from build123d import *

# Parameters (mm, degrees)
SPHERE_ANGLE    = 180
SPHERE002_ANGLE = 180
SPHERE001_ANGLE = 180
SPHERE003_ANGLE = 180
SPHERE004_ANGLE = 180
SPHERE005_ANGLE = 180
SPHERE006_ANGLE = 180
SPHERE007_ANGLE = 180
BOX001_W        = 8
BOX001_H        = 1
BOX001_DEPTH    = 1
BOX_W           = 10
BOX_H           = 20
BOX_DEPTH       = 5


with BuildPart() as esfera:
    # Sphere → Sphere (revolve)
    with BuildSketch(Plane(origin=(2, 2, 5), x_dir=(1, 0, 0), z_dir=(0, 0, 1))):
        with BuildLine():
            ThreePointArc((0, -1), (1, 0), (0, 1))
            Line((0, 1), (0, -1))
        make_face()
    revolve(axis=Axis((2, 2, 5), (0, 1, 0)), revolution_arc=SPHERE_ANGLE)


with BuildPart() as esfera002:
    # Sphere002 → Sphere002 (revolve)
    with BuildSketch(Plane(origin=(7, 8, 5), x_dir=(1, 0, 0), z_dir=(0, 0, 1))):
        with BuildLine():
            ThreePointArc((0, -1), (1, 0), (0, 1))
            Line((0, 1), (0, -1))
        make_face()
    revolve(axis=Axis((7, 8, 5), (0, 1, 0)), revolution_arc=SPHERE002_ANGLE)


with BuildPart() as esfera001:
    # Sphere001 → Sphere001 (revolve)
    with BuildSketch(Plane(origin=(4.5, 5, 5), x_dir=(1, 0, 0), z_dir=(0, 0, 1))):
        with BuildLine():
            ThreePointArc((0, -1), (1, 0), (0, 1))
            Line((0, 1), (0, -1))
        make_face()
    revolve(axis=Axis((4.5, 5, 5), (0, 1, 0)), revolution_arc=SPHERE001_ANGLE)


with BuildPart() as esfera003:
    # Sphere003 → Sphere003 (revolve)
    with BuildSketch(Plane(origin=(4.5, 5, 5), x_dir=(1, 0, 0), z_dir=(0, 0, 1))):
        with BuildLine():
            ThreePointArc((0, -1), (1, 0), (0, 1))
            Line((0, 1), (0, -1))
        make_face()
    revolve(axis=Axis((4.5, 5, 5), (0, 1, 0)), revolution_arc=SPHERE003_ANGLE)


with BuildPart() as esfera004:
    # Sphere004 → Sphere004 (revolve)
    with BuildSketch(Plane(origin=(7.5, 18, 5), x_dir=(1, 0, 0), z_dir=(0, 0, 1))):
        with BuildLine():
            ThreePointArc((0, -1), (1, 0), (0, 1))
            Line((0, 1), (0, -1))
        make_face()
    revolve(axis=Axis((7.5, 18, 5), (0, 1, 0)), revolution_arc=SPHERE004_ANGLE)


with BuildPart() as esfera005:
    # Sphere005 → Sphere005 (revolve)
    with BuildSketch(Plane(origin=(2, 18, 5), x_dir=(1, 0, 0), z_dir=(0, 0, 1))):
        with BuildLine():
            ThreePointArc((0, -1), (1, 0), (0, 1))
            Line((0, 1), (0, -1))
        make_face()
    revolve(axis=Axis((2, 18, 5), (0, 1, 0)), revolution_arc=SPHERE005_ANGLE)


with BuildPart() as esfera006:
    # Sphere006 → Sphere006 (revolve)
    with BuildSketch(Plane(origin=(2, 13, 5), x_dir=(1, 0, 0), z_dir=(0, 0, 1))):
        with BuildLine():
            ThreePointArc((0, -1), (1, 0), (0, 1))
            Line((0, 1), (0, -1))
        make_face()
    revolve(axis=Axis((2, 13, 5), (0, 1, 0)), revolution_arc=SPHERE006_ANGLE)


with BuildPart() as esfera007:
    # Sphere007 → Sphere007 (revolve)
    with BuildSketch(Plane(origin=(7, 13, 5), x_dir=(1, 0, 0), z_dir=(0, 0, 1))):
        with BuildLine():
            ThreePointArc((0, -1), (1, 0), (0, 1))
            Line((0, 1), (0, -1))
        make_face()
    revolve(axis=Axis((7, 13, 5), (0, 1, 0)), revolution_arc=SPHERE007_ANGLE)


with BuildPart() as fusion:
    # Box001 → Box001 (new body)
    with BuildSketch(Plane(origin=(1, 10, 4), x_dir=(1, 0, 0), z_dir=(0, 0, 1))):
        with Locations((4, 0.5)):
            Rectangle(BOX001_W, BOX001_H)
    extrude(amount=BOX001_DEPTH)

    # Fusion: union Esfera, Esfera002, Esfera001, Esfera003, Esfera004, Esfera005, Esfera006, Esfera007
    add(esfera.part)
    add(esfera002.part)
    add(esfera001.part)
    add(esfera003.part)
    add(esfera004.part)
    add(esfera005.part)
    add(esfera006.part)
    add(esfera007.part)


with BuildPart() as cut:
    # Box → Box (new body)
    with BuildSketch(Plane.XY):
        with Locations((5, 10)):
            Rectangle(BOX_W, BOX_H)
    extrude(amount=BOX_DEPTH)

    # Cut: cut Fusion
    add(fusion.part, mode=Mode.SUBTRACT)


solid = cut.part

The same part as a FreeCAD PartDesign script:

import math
import FreeCAD as App
import Part
import Sketcher

V = App.Vector
Q = App.Units.Quantity

doc = App.newDocument("Part")
body = doc.addObject("PartDesign::Body", "Body")

# Sketch on XY plane
sketch1 = body.newObject("Sketcher::SketchObject", "Sketch")
sketch1.AttachmentSupport = (doc.getObject("XY_Plane"), [""])
sketch1.MapMode = "FlatFace"
sketch1.AttachmentOffset = App.Placement(V(0, 0, 5), App.Rotation())
sketch1.addGeometry(Part.ArcOfCircle(Part.Circle(V(2, 2, 0), V(0, 0, 1), 1), math.radians(-90), math.radians(90)), False)
sketch1.addGeometry(Part.LineSegment(V(2, 3, 0), V(2, 1, 0)), False)
sketch1.addGeometry(Part.LineSegment(V(2, 1, 0), V(2, 3, 0)), True)  # axis
sketch1.addConstraint(Sketcher.Constraint("Coincident", 0, 1, 1, 2))
sketch1.addConstraint(Sketcher.Constraint("Coincident", 1, 1, 0, 2))
sketch1.addConstraint(Sketcher.Constraint("Vertical", 1))
sketch1.addConstraint(Sketcher.Constraint("Vertical", 2))
sketch1.addConstraint(Sketcher.Constraint("Coincident", 2, 1, 0, 1))
sketch1.addConstraint(Sketcher.Constraint("Equal", 1, 2))
sketch1.addConstraint(Sketcher.Constraint("Radius", 0, Q("1 mm")))
sketch1.addConstraint(Sketcher.Constraint("DistanceX", -1, 1, 0, 3, Q("2 mm")))
sketch1.addConstraint(Sketcher.Constraint("DistanceY", -1, 1, 0, 3, Q("2 mm")))
sketch1.addConstraint(Sketcher.Constraint("DistanceX", -1, 1, 0, 1, Q("2 mm")))
revolution = body.newObject("PartDesign::Revolution", "Revolution")
revolution.Profile = sketch1
revolution.ReferenceAxis = (sketch1, ["Axis0"])
revolution.Angle = 180
body2 = doc.addObject("PartDesign::Body", "Body001")

# Sketch on XY plane
sketch2 = body2.newObject("Sketcher::SketchObject", "Sketch001")
sketch2.AttachmentSupport = (doc.getObject("XY_Plane001"), [""])
sketch2.MapMode = "FlatFace"
sketch2.AttachmentOffset = App.Placement(V(0, 0, 5), App.Rotation())
sketch2.addGeometry(Part.ArcOfCircle(Part.Circle(V(7, 8, 0), V(0, 0, 1), 1), math.radians(-90), math.radians(90)), False)
sketch2.addGeometry(Part.LineSegment(V(7, 9, 0), V(7, 7, 0)), False)
sketch2.addGeometry(Part.LineSegment(V(7, 7, 0), V(7, 9, 0)), True)  # axis
sketch2.addConstraint(Sketcher.Constraint("Coincident", 0, 1, 1, 2))
sketch2.addConstraint(Sketcher.Constraint("Coincident", 1, 1, 0, 2))
sketch2.addConstraint(Sketcher.Constraint("Vertical", 1))
sketch2.addConstraint(Sketcher.Constraint("Vertical", 2))
sketch2.addConstraint(Sketcher.Constraint("Coincident", 2, 1, 0, 1))
sketch2.addConstraint(Sketcher.Constraint("Equal", 1, 2))
sketch2.addConstraint(Sketcher.Constraint("Radius", 0, Q("1 mm")))
sketch2.addConstraint(Sketcher.Constraint("DistanceX", -1, 1, 0, 3, Q("7 mm")))
sketch2.addConstraint(Sketcher.Constraint("DistanceY", -1, 1, 0, 3, Q("8 mm")))
sketch2.addConstraint(Sketcher.Constraint("DistanceX", -1, 1, 0, 1, Q("7 mm")))
revolution2 = body2.newObject("PartDesign::Revolution", "Revolution001")
revolution2.Profile = sketch2
revolution2.ReferenceAxis = (sketch2, ["Axis0"])
revolution2.Angle = 180
body3 = doc.addObject("PartDesign::Body", "Body002")

# Sketch on XY plane
sketch3 = body3.newObject("Sketcher::SketchObject", "Sketch002")
sketch3.AttachmentSupport = (doc.getObject("XY_Plane002"), [""])
sketch3.MapMode = "FlatFace"
sketch3.AttachmentOffset = App.Placement(V(0, 0, 5), App.Rotation())
sketch3.addGeometry(Part.ArcOfCircle(Part.Circle(V(4.5, 5, 0), V(0, 0, 1), 1), math.radians(-90), math.radians(90)), False)
sketch3.addGeometry(Part.LineSegment(V(4.5, 6, 0), V(4.5, 4, 0)), False)
sketch3.addGeometry(Part.LineSegment(V(4.5, 4, 0), V(4.5, 6, 0)), True)  # axis
sketch3.addConstraint(Sketcher.Constraint("Coincident", 0, 1, 1, 2))
sketch3.addConstraint(Sketcher.Constraint("Coincident", 1, 1, 0, 2))
sketch3.addConstraint(Sketcher.Constraint("Vertical", 1))
sketch3.addConstraint(Sketcher.Constraint("Vertical", 2))
sketch3.addConstraint(Sketcher.Constraint("Coincident", 2, 1, 0, 1))
sketch3.addConstraint(Sketcher.Constraint("Equal", 1, 2))
sketch3.addConstraint(Sketcher.Constraint("Radius", 0, Q("1 mm")))
sketch3.addConstraint(Sketcher.Constraint("DistanceY", -1, 1, 0, 3, Q("5 mm")))
sketch3.addConstraint(Sketcher.Constraint("DistanceX", -1, 1, 0, 3, Q("4.5 mm")))
sketch3.addConstraint(Sketcher.Constraint("DistanceX", -1, 1, 0, 1, Q("4.5 mm")))
revolution3 = body3.newObject("PartDesign::Revolution", "Revolution002")
revolution3.Profile = sketch3
revolution3.ReferenceAxis = (sketch3, ["Axis0"])
revolution3.Angle = 180
body4 = doc.addObject("PartDesign::Body", "Body003")

# Sketch on XY plane
sketch4 = body4.newObject("Sketcher::SketchObject", "Sketch003")
sketch4.AttachmentSupport = (doc.getObject("XY_Plane003"), [""])
sketch4.MapMode = "FlatFace"
sketch4.AttachmentOffset = App.Placement(V(0, 0, 5), App.Rotation())
sketch4.addGeometry(Part.ArcOfCircle(Part.Circle(V(4.5, 5, 0), V(0, 0, 1), 1), math.radians(-90), math.radians(90)), False)
sketch4.addGeometry(Part.LineSegment(V(4.5, 6, 0), V(4.5, 4, 0)), False)
sketch4.addGeometry(Part.LineSegment(V(4.5, 4, 0), V(4.5, 6, 0)), True)  # axis
sketch4.addConstraint(Sketcher.Constraint("Coincident", 0, 1, 1, 2))
sketch4.addConstraint(Sketcher.Constraint("Coincident", 1, 1, 0, 2))
sketch4.addConstraint(Sketcher.Constraint("Vertical", 1))
sketch4.addConstraint(Sketcher.Constraint("Vertical", 2))
sketch4.addConstraint(Sketcher.Constraint("Coincident", 2, 1, 0, 1))
sketch4.addConstraint(Sketcher.Constraint("Equal", 1, 2))
sketch4.addConstraint(Sketcher.Constraint("Radius", 0, Q("1 mm")))
sketch4.addConstraint(Sketcher.Constraint("DistanceY", -1, 1, 0, 3, Q("5 mm")))
sketch4.addConstraint(Sketcher.Constraint("DistanceX", -1, 1, 0, 3, Q("4.5 mm")))
sketch4.addConstraint(Sketcher.Constraint("DistanceX", -1, 1, 0, 1, Q("4.5 mm")))
revolution4 = body4.newObject("PartDesign::Revolution", "Revolution003")
revolution4.Profile = sketch4
revolution4.ReferenceAxis = (sketch4, ["Axis0"])
revolution4.Angle = 180
body5 = doc.addObject("PartDesign::Body", "Body004")

# Sketch on XY plane
sketch5 = body5.newObject("Sketcher::SketchObject", "Sketch004")
sketch5.AttachmentSupport = (doc.getObject("XY_Plane004"), [""])
sketch5.MapMode = "FlatFace"
sketch5.AttachmentOffset = App.Placement(V(0, 0, 5), App.Rotation())
sketch5.addGeometry(Part.ArcOfCircle(Part.Circle(V(7.5, 18, 0), V(0, 0, 1), 1), math.radians(-90), math.radians(90)), False)
sketch5.addGeometry(Part.LineSegment(V(7.5, 19, 0), V(7.5, 17, 0)), False)
sketch5.addGeometry(Part.LineSegment(V(7.5, 17, 0), V(7.5, 19, 0)), True)  # axis
sketch5.addConstraint(Sketcher.Constraint("Coincident", 0, 1, 1, 2))
sketch5.addConstraint(Sketcher.Constraint("Coincident", 1, 1, 0, 2))
sketch5.addConstraint(Sketcher.Constraint("Vertical", 1))
sketch5.addConstraint(Sketcher.Constraint("Vertical", 2))
sketch5.addConstraint(Sketcher.Constraint("Coincident", 2, 1, 0, 1))
sketch5.addConstraint(Sketcher.Constraint("Equal", 1, 2))
sketch5.addConstraint(Sketcher.Constraint("Radius", 0, Q("1 mm")))
sketch5.addConstraint(Sketcher.Constraint("DistanceY", -1, 1, 0, 3, Q("18 mm")))
sketch5.addConstraint(Sketcher.Constraint("DistanceX", -1, 1, 0, 3, Q("7.5 mm")))
sketch5.addConstraint(Sketcher.Constraint("DistanceX", -1, 1, 0, 1, Q("7.5 mm")))
revolution5 = body5.newObject("PartDesign::Revolution", "Revolution004")
revolution5.Profile = sketch5
revolution5.ReferenceAxis = (sketch5, ["Axis0"])
revolution5.Angle = 180
body6 = doc.addObject("PartDesign::Body", "Body005")

# Sketch on XY plane
sketch6 = body6.newObject("Sketcher::SketchObject", "Sketch005")
sketch6.AttachmentSupport = (doc.getObject("XY_Plane005"), [""])
sketch6.MapMode = "FlatFace"
sketch6.AttachmentOffset = App.Placement(V(0, 0, 5), App.Rotation())
sketch6.addGeometry(Part.ArcOfCircle(Part.Circle(V(2, 18, 0), V(0, 0, 1), 1), math.radians(-90), math.radians(90)), False)
sketch6.addGeometry(Part.LineSegment(V(2, 19, 0), V(2, 17, 0)), False)
sketch6.addGeometry(Part.LineSegment(V(2, 17, 0), V(2, 19, 0)), True)  # axis
sketch6.addConstraint(Sketcher.Constraint("Coincident", 0, 1, 1, 2))
sketch6.addConstraint(Sketcher.Constraint("Coincident", 1, 1, 0, 2))
sketch6.addConstraint(Sketcher.Constraint("Vertical", 1))
sketch6.addConstraint(Sketcher.Constraint("Vertical", 2))
sketch6.addConstraint(Sketcher.Constraint("Coincident", 2, 1, 0, 1))
sketch6.addConstraint(Sketcher.Constraint("Equal", 1, 2))
sketch6.addConstraint(Sketcher.Constraint("Radius", 0, Q("1 mm")))
sketch6.addConstraint(Sketcher.Constraint("DistanceX", -1, 1, 0, 3, Q("2 mm")))
sketch6.addConstraint(Sketcher.Constraint("DistanceY", -1, 1, 0, 3, Q("18 mm")))
sketch6.addConstraint(Sketcher.Constraint("DistanceX", -1, 1, 0, 1, Q("2 mm")))
revolution6 = body6.newObject("PartDesign::Revolution", "Revolution005")
revolution6.Profile = sketch6
revolution6.ReferenceAxis = (sketch6, ["Axis0"])
revolution6.Angle = 180
body7 = doc.addObject("PartDesign::Body", "Body006")

# Sketch on XY plane
sketch7 = body7.newObject("Sketcher::SketchObject", "Sketch006")
sketch7.AttachmentSupport = (doc.getObject("XY_Plane006"), [""])
sketch7.MapMode = "FlatFace"
sketch7.AttachmentOffset = App.Placement(V(0, 0, 5), App.Rotation())
sketch7.addGeometry(Part.ArcOfCircle(Part.Circle(V(2, 13, 0), V(0, 0, 1), 1), math.radians(-90), math.radians(90)), False)
sketch7.addGeometry(Part.LineSegment(V(2, 14, 0), V(2, 12, 0)), False)
sketch7.addGeometry(Part.LineSegment(V(2, 12, 0), V(2, 14, 0)), True)  # axis
sketch7.addConstraint(Sketcher.Constraint("Coincident", 0, 1, 1, 2))
sketch7.addConstraint(Sketcher.Constraint("Coincident", 1, 1, 0, 2))
sketch7.addConstraint(Sketcher.Constraint("Vertical", 1))
sketch7.addConstraint(Sketcher.Constraint("Vertical", 2))
sketch7.addConstraint(Sketcher.Constraint("Coincident", 2, 1, 0, 1))
sketch7.addConstraint(Sketcher.Constraint("Equal", 1, 2))
sketch7.addConstraint(Sketcher.Constraint("Radius", 0, Q("1 mm")))
sketch7.addConstraint(Sketcher.Constraint("DistanceX", -1, 1, 0, 3, Q("2 mm")))
sketch7.addConstraint(Sketcher.Constraint("DistanceY", -1, 1, 0, 3, Q("13 mm")))
sketch7.addConstraint(Sketcher.Constraint("DistanceX", -1, 1, 0, 1, Q("2 mm")))
revolution7 = body7.newObject("PartDesign::Revolution", "Revolution006")
revolution7.Profile = sketch7
revolution7.ReferenceAxis = (sketch7, ["Axis0"])
revolution7.Angle = 180
body8 = doc.addObject("PartDesign::Body", "Body007")

# Sketch on XY plane
sketch8 = body8.newObject("Sketcher::SketchObject", "Sketch007")
sketch8.AttachmentSupport = (doc.getObject("XY_Plane007"), [""])
sketch8.MapMode = "FlatFace"
sketch8.AttachmentOffset = App.Placement(V(0, 0, 5), App.Rotation())
sketch8.addGeometry(Part.ArcOfCircle(Part.Circle(V(7, 13, 0), V(0, 0, 1), 1), math.radians(-90), math.radians(90)), False)
sketch8.addGeometry(Part.LineSegment(V(7, 14, 0), V(7, 12, 0)), False)
sketch8.addGeometry(Part.LineSegment(V(7, 12, 0), V(7, 14, 0)), True)  # axis
sketch8.addConstraint(Sketcher.Constraint("Coincident", 0, 1, 1, 2))
sketch8.addConstraint(Sketcher.Constraint("Coincident", 1, 1, 0, 2))
sketch8.addConstraint(Sketcher.Constraint("Vertical", 1))
sketch8.addConstraint(Sketcher.Constraint("Vertical", 2))
sketch8.addConstraint(Sketcher.Constraint("Coincident", 2, 1, 0, 1))
sketch8.addConstraint(Sketcher.Constraint("Equal", 1, 2))
sketch8.addConstraint(Sketcher.Constraint("Radius", 0, Q("1 mm")))
sketch8.addConstraint(Sketcher.Constraint("DistanceX", -1, 1, 0, 3, Q("7 mm")))
sketch8.addConstraint(Sketcher.Constraint("DistanceY", -1, 1, 0, 3, Q("13 mm")))
sketch8.addConstraint(Sketcher.Constraint("DistanceX", -1, 1, 0, 1, Q("7 mm")))
revolution8 = body8.newObject("PartDesign::Revolution", "Revolution007")
revolution8.Profile = sketch8
revolution8.ReferenceAxis = (sketch8, ["Axis0"])
revolution8.Angle = 180
body9 = doc.addObject("PartDesign::Body", "Body008")
body9.AllowCompound = True

# Sketch on XY plane
sketch9 = body9.newObject("Sketcher::SketchObject", "Sketch008")
sketch9.AttachmentSupport = (doc.getObject("XY_Plane008"), [""])
sketch9.MapMode = "FlatFace"
sketch9.AttachmentOffset = App.Placement(V(0, 0, 4), App.Rotation())
sketch9.addGeometry(Part.LineSegment(V(1, 11, 0), V(1, 10, 0)), False)
sketch9.addGeometry(Part.LineSegment(V(1, 10, 0), V(9, 10, 0)), False)
sketch9.addGeometry(Part.LineSegment(V(9, 10, 0), V(9, 11, 0)), False)
sketch9.addGeometry(Part.LineSegment(V(9, 11, 0), V(1, 11, 0)), False)
sketch9.addConstraint(Sketcher.Constraint("Coincident", 0, 2, 1, 1))
sketch9.addConstraint(Sketcher.Constraint("Coincident", 1, 2, 2, 1))
sketch9.addConstraint(Sketcher.Constraint("Coincident", 2, 2, 3, 1))
sketch9.addConstraint(Sketcher.Constraint("Coincident", 3, 2, 0, 1))
sketch9.addConstraint(Sketcher.Constraint("Vertical", 0))
sketch9.addConstraint(Sketcher.Constraint("Horizontal", 1))
sketch9.addConstraint(Sketcher.Constraint("Vertical", 2))
sketch9.addConstraint(Sketcher.Constraint("Horizontal", 3))
sketch9.addConstraint(Sketcher.Constraint("DistanceX", 1, 1, 1, 2, Q("8 mm")))
sketch9.addConstraint(Sketcher.Constraint("DistanceY", 0, 2, 0, 1, Q("1 mm")))
sketch9.addConstraint(Sketcher.Constraint("DistanceX", -1, 1, 0, 2, Q("1 mm")))
sketch9.addConstraint(Sketcher.Constraint("DistanceY", -1, 1, 0, 2, Q("10 mm")))
pad1 = body9.newObject("PartDesign::Pad", "Pad")
pad1.Profile = sketch9
pad1.Length = 1
doc.recompute()

boolean = body9.newObject("PartDesign::Boolean", "Boolean")
boolean.Type = "Fuse"
boolean.addObjects([body])
doc.recompute()

boolean2 = body9.newObject("PartDesign::Boolean", "Boolean001")
boolean2.Type = "Fuse"
boolean2.addObjects([body2])
doc.recompute()

boolean3 = body9.newObject("PartDesign::Boolean", "Boolean002")
boolean3.Type = "Fuse"
boolean3.addObjects([body3])
doc.recompute()

boolean4 = body9.newObject("PartDesign::Boolean", "Boolean003")
boolean4.Type = "Fuse"
boolean4.addObjects([body4])
doc.recompute()

boolean5 = body9.newObject("PartDesign::Boolean", "Boolean004")
boolean5.Type = "Fuse"
boolean5.addObjects([body5])
doc.recompute()

boolean6 = body9.newObject("PartDesign::Boolean", "Boolean005")
boolean6.Type = "Fuse"
boolean6.addObjects([body6])
doc.recompute()

boolean7 = body9.newObject("PartDesign::Boolean", "Boolean006")
boolean7.Type = "Fuse"
boolean7.addObjects([body7])
doc.recompute()

boolean8 = body9.newObject("PartDesign::Boolean", "Boolean007")
boolean8.Type = "Fuse"
boolean8.addObjects([body8])
body10 = doc.addObject("PartDesign::Body", "Body009")

# Sketch on XY plane
sketch10 = body10.newObject("Sketcher::SketchObject", "Sketch009")
sketch10.AttachmentSupport = (doc.getObject("XY_Plane009"), [""])
sketch10.MapMode = "FlatFace"
sketch10.addGeometry(Part.LineSegment(V(0, 20, 0), V(0, 0, 0)), False)
sketch10.addGeometry(Part.LineSegment(V(0, 0, 0), V(10, 0, 0)), False)
sketch10.addGeometry(Part.LineSegment(V(10, 0, 0), V(10, 20, 0)), False)
sketch10.addGeometry(Part.LineSegment(V(10, 20, 0), V(0, 20, 0)), False)
sketch10.addConstraint(Sketcher.Constraint("Coincident", 0, 2, 1, 1))
sketch10.addConstraint(Sketcher.Constraint("Coincident", 1, 2, 2, 1))
sketch10.addConstraint(Sketcher.Constraint("Coincident", 2, 2, 3, 1))
sketch10.addConstraint(Sketcher.Constraint("Coincident", 3, 2, 0, 1))
sketch10.addConstraint(Sketcher.Constraint("Vertical", 0))
sketch10.addConstraint(Sketcher.Constraint("Horizontal", 1))
sketch10.addConstraint(Sketcher.Constraint("Vertical", 2))
sketch10.addConstraint(Sketcher.Constraint("Horizontal", 3))
sketch10.addConstraint(Sketcher.Constraint("Coincident", 0, 2, -1, 1))
sketch10.addConstraint(Sketcher.Constraint("DistanceX", 1, 1, 1, 2, Q("10 mm")))
sketch10.addConstraint(Sketcher.Constraint("DistanceY", 0, 2, 0, 1, Q("20 mm")))
pad2 = body10.newObject("PartDesign::Pad", "Pad001")
pad2.Profile = sketch10
pad2.Length = 5
doc.recompute()

boolean9 = body10.newObject("PartDesign::Boolean", "Boolean008")
boolean9.Type = "Cut"
boolean9.addObjects([body9])

doc.recompute()
